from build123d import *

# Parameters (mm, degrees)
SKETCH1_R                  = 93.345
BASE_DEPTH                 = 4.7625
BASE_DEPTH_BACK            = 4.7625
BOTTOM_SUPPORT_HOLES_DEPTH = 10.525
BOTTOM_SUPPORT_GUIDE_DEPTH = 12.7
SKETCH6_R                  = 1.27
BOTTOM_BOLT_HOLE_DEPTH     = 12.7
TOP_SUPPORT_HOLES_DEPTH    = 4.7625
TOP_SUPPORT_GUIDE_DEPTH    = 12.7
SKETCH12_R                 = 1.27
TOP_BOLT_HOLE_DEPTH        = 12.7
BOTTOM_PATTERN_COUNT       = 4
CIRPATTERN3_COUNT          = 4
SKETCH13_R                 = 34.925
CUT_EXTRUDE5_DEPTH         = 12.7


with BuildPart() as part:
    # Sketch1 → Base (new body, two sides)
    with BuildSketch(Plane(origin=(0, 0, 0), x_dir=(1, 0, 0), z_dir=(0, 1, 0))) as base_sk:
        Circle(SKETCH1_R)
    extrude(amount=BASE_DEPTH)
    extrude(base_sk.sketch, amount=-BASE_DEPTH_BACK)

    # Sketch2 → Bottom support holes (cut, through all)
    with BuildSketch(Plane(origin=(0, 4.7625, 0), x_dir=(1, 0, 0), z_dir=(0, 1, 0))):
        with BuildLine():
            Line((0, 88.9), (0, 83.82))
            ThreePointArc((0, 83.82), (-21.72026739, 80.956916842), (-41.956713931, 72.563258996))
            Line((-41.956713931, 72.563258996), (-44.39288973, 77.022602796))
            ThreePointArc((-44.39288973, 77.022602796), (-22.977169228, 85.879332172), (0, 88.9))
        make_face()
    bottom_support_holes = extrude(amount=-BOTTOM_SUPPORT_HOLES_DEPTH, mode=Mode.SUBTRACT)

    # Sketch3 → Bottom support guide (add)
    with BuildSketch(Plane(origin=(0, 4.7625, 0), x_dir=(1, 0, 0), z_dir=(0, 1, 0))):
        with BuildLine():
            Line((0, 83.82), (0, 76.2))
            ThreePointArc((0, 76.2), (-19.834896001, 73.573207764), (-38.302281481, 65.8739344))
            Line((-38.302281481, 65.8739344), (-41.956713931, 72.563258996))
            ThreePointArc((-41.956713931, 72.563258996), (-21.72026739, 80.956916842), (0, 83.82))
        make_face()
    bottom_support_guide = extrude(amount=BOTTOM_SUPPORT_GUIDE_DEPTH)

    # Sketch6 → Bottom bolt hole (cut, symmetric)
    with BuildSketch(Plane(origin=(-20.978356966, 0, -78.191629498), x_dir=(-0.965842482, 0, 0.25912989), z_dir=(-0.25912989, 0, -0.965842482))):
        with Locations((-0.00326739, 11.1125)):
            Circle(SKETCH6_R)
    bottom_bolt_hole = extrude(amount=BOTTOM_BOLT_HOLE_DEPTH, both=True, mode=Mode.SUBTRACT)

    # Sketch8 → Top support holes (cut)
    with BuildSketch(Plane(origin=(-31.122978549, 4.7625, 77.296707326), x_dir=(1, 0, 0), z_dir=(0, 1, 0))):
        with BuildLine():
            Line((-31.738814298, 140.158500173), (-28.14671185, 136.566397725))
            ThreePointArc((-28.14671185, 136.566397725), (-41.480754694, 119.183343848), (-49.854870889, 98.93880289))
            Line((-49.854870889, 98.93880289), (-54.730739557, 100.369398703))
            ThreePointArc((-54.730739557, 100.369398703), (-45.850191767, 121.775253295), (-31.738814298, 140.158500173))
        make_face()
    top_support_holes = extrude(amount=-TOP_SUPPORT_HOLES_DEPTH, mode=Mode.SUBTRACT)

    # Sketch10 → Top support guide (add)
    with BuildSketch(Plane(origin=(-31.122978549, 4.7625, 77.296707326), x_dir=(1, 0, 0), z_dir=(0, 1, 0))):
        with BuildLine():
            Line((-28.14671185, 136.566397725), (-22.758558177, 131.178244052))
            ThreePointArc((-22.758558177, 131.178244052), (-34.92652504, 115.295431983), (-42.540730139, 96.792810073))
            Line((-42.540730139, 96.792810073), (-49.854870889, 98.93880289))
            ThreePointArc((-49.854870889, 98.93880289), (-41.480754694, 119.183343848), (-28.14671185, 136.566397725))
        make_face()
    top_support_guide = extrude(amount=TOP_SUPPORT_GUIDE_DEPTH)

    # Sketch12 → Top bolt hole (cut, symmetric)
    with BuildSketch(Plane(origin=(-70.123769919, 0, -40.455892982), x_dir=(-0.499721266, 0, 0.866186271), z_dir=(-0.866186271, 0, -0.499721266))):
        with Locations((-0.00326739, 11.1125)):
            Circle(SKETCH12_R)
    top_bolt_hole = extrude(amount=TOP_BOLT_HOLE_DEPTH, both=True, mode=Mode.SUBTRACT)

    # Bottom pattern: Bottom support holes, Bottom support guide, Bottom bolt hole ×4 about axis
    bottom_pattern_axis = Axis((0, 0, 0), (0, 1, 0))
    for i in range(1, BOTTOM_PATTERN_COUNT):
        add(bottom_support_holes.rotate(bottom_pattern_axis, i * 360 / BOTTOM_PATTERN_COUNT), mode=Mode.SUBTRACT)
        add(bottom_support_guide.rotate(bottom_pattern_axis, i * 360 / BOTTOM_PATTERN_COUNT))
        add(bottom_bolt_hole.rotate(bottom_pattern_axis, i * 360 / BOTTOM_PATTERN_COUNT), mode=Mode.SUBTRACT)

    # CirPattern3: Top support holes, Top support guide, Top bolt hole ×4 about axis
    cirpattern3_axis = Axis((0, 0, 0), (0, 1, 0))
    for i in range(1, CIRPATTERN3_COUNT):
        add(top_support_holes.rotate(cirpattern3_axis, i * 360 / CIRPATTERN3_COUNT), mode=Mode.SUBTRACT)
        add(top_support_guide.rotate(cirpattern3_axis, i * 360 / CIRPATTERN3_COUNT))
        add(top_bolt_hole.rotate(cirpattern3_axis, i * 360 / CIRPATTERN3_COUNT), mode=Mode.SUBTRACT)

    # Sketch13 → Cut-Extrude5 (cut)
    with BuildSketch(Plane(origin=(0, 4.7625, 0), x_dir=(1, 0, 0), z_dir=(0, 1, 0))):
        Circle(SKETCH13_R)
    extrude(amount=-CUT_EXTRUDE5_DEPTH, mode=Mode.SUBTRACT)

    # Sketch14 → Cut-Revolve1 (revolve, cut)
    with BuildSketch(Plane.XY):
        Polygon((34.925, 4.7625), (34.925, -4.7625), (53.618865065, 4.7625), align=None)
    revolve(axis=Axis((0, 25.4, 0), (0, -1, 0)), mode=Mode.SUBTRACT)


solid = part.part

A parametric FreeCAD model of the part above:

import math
import FreeCAD as App
import Part
import Sketcher
Q = App.Units.Quantity

doc = App.newDocument("Part")
body = doc.addObject("PartDesign::Body", "Body")

# Sketch on XZ plane
sketch1 = body.newObject("Sketcher::SketchObject", "Sketch")
sketch1.AttachmentSupport = (doc.getObject("XZ_Plane"), [""])
sketch1.MapMode = "FlatFace"
sketch1.addGeometry(Part.Circle(App.Vector(0, 0, 0), App.Vector(0, 0, 1), 93.345), False)
sketch1.addConstraint([
    Sketcher.Constraint("Coincident", 0, 3, -1, 1),
    Sketcher.Constraint("Diameter", 0, Q("7.35 in")),
])
pad1 = body.newObject("PartDesign::Pad", "Pad")
pad1.Profile = sketch1
pad1.Type = "TwoLengths"
pad1.Length = Q("0.1875 in")
pad1.Length2 = Q("0.1875 in")
pad1.Reversed = True

# Sketch on XZ plane
sketch2 = body.newObject("Sketcher::SketchObject", "Sketch001")
sketch2.AttachmentSupport = (doc.getObject("XZ_Plane"), [""])
sketch2.MapMode = "FlatFace"
sketch2.AttachmentOffset = App.Placement(App.Vector(0, 0, -0.1875 * 25.4), App.Rotation())
sketch2.addGeometry([
    Part.LineSegment(App.Vector(0, -83.82, 0), App.Vector(0, -88.9, 0)),
    Part.ArcOfCircle(Part.Circle(App.Vector(0, 0, 0), App.Vector(0, 0, 1), 88.9), math.radians(-119.957508), math.radians(-90)),
    Part.LineSegment(App.Vector(-44.39289, -77.022603, 0), App.Vector(-41.956714, -72.563259, 0)),
    Part.ArcOfCircle(Part.Circle(App.Vector(0, 0, 0), App.Vector(0, 0, 1), 83.82), math.radians(-120.036878), math.radians(-90)),
], False)
sketch2.addConstraint([
    Sketcher.Constraint("Coincident", 0, 2, 1, 2),
    Sketcher.Constraint("Coincident", 1, 1, 2, 1),
    Sketcher.Constraint("Coincident", 2, 2, 3, 1),
    Sketcher.Constraint("Coincident", 3, 2, 0, 1),
    Sketcher.Constraint("Vertical", 0),
    Sketcher.Constraint("Coincident", 1, 3, -1, 1),
    Sketcher.Constraint("Coincident", 3, 3, -1, 1),
    Sketcher.Constraint("PointOnObject", 0, 2, -2),
    Sketcher.Constraint("Radius", 1, Q("3.5 in")),
    Sketcher.Constraint("Radius", 3, Q("3.3 in")),
    Sketcher.Constraint("DistanceX", 1, 1, -1, 1, Q("44.39289 mm")),
    Sketcher.Constraint("DistanceY", 2, 2, -1, 1, Q("72.563259 mm")),
])
pocket1 = body.newObject("PartDesign::Pocket", "Pocket")
pocket1.Profile = sketch2
pocket1.Type = "ThroughAll"
pocket1.Reversed = True

# Sketch on XZ plane
sketch3 = body.newObject("Sketcher::SketchObject", "Sketch002")
sketch3.AttachmentSupport = (doc.getObject("XZ_Plane"), [""])
sketch3.MapMode = "FlatFace"
sketch3.AttachmentOffset = App.Placement(App.Vector(0, 0, -0.1875 * 25.4), App.Rotation())
sketch3.addGeometry([
    Part.LineSegment(App.Vector(0, -76.2, 0), App.Vector(0, -83.82, 0)),
    Part.ArcOfCircle(Part.Circle(App.Vector(0, 0, 0), App.Vector(0, 0, 1), 83.82), math.radians(-120.036878), math.radians(-90)),
    Part.LineSegment(App.Vector(-41.956714, -72.563259, 0), App.Vector(-38.302281, -65.873934, 0)),
    Part.ArcOfCircle(Part.Circle(App.Vector(0, 0, 0), App.Vector(0, 0, 1), 76.2), math.radians(-120.175784), math.radians(-90)),
], False)
sketch3.addConstraint([
    Sketcher.Constraint("Coincident", 0, 2, 1, 2),
    Sketcher.Constraint("Coincident", 1, 1, 2, 1),
    Sketcher.Constraint("Coincident", 2, 2, 3, 1),
    Sketcher.Constraint("Coincident", 3, 2, 0, 1),
    Sketcher.Constraint("Vertical", 0),
    Sketcher.Constraint("Coincident", 1, 3, -1, 1),
    Sketcher.Constraint("Coincident", 3, 3, -1, 1),
    Sketcher.Constraint("PointOnObject", 0, 2, -2),
    Sketcher.Constraint("Radius", 3, Q("3 in")),
    Sketcher.Constraint("Radius", 1, Q("3.3 in")),
    Sketcher.Constraint("DistanceY", 1, 1, -1, 1, Q("72.563259 mm")),
    Sketcher.Constraint("DistanceX", 2, 2, -1, 1, Q("38.302281 mm")),
])
pad2 = body.newObject("PartDesign::Pad", "Pad001")
pad2.Profile = sketch3
pad2.Length = Q("0.5 in")
pad2.Reversed = True

# Sketch on an angled plane
sketch4 = body.newObject("Sketcher::SketchObject", "Sketch003")
sketch4.Placement = App.Placement(App.Vector(-20.978357, 0, -78.191629), App.Rotation(App.Vector(-0.965842482, 0, 0.25912989), App.Vector(0, 1, 0), App.Vector(-0.25912989, 0, -0.965842482), "ZXY"))
sketch4.addGeometry(Part.Circle(App.Vector(-0.003267, 11.1125, 0), App.Vector(0, 0, 1), 1.27), False)
sketch4.addConstraint([
    Sketcher.Constraint("Diameter", 0, Q("0.1 in")),
    Sketcher.Constraint("DistanceY", -1, 1, 0, 3, Q("0.4375 in")),
    Sketcher.Constraint("DistanceX", 0, 3, -1, 1, Q("0.003267 mm")),
])
pocket2 = body.newObject("PartDesign::Pocket", "Pocket001")
pocket2.Profile = sketch4
pocket2.Length = Q("1 in")
pocket2.Midplane = True

# Sketch on XZ plane
sketch5 = body.newObject("Sketcher::SketchObject", "Sketch004")
sketch5.AttachmentSupport = (doc.getObject("XZ_Plane"), [""])
sketch5.MapMode = "FlatFace"
sketch5.AttachmentOffset = App.Placement(App.Vector(0, 0, -0.1875 * 25.4), App.Rotation())
sketch5.addGeometry([
    Part.LineSegment(App.Vector(-59.26969, -59.26969, 0), App.Vector(-62.861793, -62.861793, 0)),
    Part.ArcOfCircle(Part.Circle(App.Vector(0, 0, 0), App.Vector(0, 0, 1), 88.9), math.radians(-164.957508), math.radians(-135)),
    Part.LineSegment(App.Vector(-85.853718, -23.072691, 0), App.Vector(-80.977849, -21.642096, 0)),
    Part.ArcOfCircle(Part.Circle(App.Vector(0, 0, 0), App.Vector(0, 0, 1), 83.82), math.radians(-165.036878), math.radians(-135)),
], False)
sketch5.addConstraint([
    Sketcher.Constraint("Coincident", 0, 2, 1, 2),
    Sketcher.Constraint("Coincident", 1, 1, 2, 1),
    Sketcher.Constraint("Coincident", 2, 2, 3, 1),
    Sketcher.Constraint("Coincident", 3, 2, 0, 1),
    Sketcher.Constraint("Coincident", 1, 3, -1, 1),
    Sketcher.Constraint("Coincident", 3, 3, -1, 1),
    Sketcher.Constraint("Radius", 1, Q("3.5 in")),
    Sketcher.Constraint("Radius", 3, Q("3.3 in")),
    Sketcher.Constraint("Angle", 0, Q("-135 deg")),
    Sketcher.Constraint("DistanceY", 0, 2, 1, 1, Q("1.5665001 in")),
    Sketcher.Constraint("DistanceX", 1, 1, -1, 1, Q("85.853718 mm")),
    Sketcher.Constraint("DistanceX", 2, 2, -1, 1, Q("80.977849 mm")),
])
pocket3 = body.newObject("PartDesign::Pocket", "Pocket002")
pocket3.Profile = sketch5
pocket3.Length = Q("0.1875 in")
pocket3.Reversed = True

# Sketch on XZ plane
sketch6 = body.newObject("Sketcher::SketchObject", "Sketch005")
sketch6.AttachmentSupport = (doc.getObject("XZ_Plane"), [""])
sketch6.MapMode = "FlatFace"
sketch6.AttachmentOffset = App.Placement(App.Vector(0, 0, -0.1875 * 25.4), App.Rotation())
sketch6.addGeometry([
    Part.LineSegment(App.Vector(-53.881537, -53.881537, 0), App.Vector(-59.26969, -59.26969, 0)),
    Part.ArcOfCircle(Part.Circle(App.Vector(0, 0, 0), App.Vector(0, 0, 1), 83.82), math.radians(-165.036878), math.radians(-135)),
    Part.LineSegment(App.Vector(-80.977849, -21.642096, 0), App.Vector(-73.663709, -19.496103, 0)),
    Part.ArcOfCircle(Part.Circle(App.Vector(0, 0, 0), App.Vector(0, 0, 1), 76.2), math.radians(-165.175784), math.radians(-135)),
], False)
sketch6.addConstraint([
    Sketcher.Constraint("Coincident", 0, 2, 1, 2),
    Sketcher.Constraint("Coincident", 1, 1, 2, 1),
    Sketcher.Constraint("Coincident", 2, 2, 3, 1),
    Sketcher.Constraint("Coincident", 3, 2, 0, 1),
    Sketcher.Constraint("Coincident", 1, 3, -1, 1),
    Sketcher.Constraint("Coincident", 3, 3, -1, 1),
    Sketcher.Constraint("Radius", 3, Q("3 in")),
    Sketcher.Constraint("Radius", 1, Q("3.3 in")),
    Sketcher.Constraint("Angle", 0, Q("-135 deg")),
    Sketcher.Constraint("DistanceX", 0, 2, -1, 1, Q("59.26969 mm")),
    Sketcher.Constraint("DistanceX", 1, 1, -1, 1, Q("80.977849 mm")),
    Sketcher.Constraint("DistanceX", 2, 2, -1, 1, Q("73.663709 mm")),
])
pad3 = body.newObject("PartDesign::Pad", "Pad002")
pad3.Profile = sketch6
pad3.Length = Q("0.5 in")
pad3.Reversed = True

# Sketch on an angled plane
sketch7 = body.newObject("Sketcher::SketchObject", "Sketch006")
sketch7.Placement = App.Placement(App.Vector(-70.12377, 0, -40.455893), App.Rotation(App.Vector(-0.499721266, 0, 0.866186271), App.Vector(0, 1, 0), App.Vector(-0.866186271, 0, -0.499721266), "ZXY"))
sketch7.addGeometry(Part.Circle(App.Vector(-0.003267, 11.1125, 0), App.Vector(0, 0, 1), 1.27), False)
sketch7.addConstraint([
    Sketcher.Constraint("Diameter", 0, Q("0.1 in")),
    Sketcher.Constraint("DistanceY", -1, 1, 0, 3, Q("0.4375 in")),
    Sketcher.Constraint("DistanceX", 0, 3, -1, 1, Q("0.003267 mm")),
])
pocket4 = body.newObject("PartDesign::Pocket", "Pocket003")
pocket4.Profile = sketch7
pocket4.Length = Q("1 in")
pocket4.Midplane = True
doc.recompute()

polarpattern = body.newObject("PartDesign::PolarPattern", "PolarPattern")
polarpattern.Originals = [pocket1, pad2, pocket2]
polarpattern.Axis = (doc.getObject("Y_Axis"), [""])
polarpattern.Angle = 360
polarpattern.Occurrences = 4
body.Tip = polarpattern
doc.recompute()

polarpattern2 = body.newObject("PartDesign::PolarPattern", "PolarPattern001")
polarpattern2.Originals = [pocket3, pad3, pocket4]
polarpattern2.Axis = (doc.getObject("Y_Axis"), [""])
polarpattern2.Angle = 360
polarpattern2.Occurrences = 4
body.Tip = polarpattern2

# Sketch on XZ plane
sketch8 = body.newObject("Sketcher::SketchObject", "Sketch007")
sketch8.AttachmentSupport = (doc.getObject("XZ_Plane"), [""])
sketch8.MapMode = "FlatFace"
sketch8.AttachmentOffset = App.Placement(App.Vector(0, 0, -0.1875 * 25.4), App.Rotation())
sketch8.addGeometry(Part.Circle(App.Vector(0, 0, 0), App.Vector(0, 0, 1), 34.925), False)
sketch8.addConstraint([
    Sketcher.Constraint("Coincident", 0, 3, -1, 1),
    Sketcher.Constraint("Diameter", 0, Q("2.75 in")),
])
pocket5 = body.newObject("PartDesign::Pocket", "Pocket004")
pocket5.Profile = sketch8
pocket5.Length = Q("0.5 in")
pocket5.Reversed = True

# Sketch on XY plane
sketch9 = body.newObject("Sketcher::SketchObject", "Sketch008")
sketch9.AttachmentSupport = (doc.getObject("XY_Plane"), [""])
sketch9.MapMode = "FlatFace"
sketch9.addGeometry([
    Part.LineSegment(App.Vector(34.925, 4.7625, 0), App.Vector(34.925, -4.7625, 0)),
    Part.LineSegment(App.Vector(34.925, -4.7625, 0), App.Vector(53.618865, 4.7625, 0)),
    Part.LineSegment(App.Vector(53.618865, 4.7625, 0), App.Vector(34.925, 4.7625, 0)),
], False)
sketch9.addConstraint([
    Sketcher.Constraint("Coincident", 0, 2, 1, 1),
    Sketcher.Constraint("Coincident", 1, 2, 2, 1),
    Sketcher.Constraint("Coincident", 2, 2, 0, 1),
    Sketcher.Constraint("Vertical", 0),
    Sketcher.Constraint("Horizontal", 2),
    Sketcher.Constraint("Angle", 1, Q("27 deg")),
    Sketcher.Constraint("DistanceY", 0, 2, 0, 1, Q("0.375 in")),
    Sketcher.Constraint("DistanceX", -1, 1, 0, 2, Q("1.375 in")),
    Sketcher.Constraint("DistanceY", 0, 2, -1, 1, Q("0.1875 in")),
])
groove = body.newObject("PartDesign::Groove", "Groove")
groove.Profile = sketch9
groove.ReferenceAxis = (sketch9, ["V_Axis"])
groove.Angle = 360

doc.recompute()
